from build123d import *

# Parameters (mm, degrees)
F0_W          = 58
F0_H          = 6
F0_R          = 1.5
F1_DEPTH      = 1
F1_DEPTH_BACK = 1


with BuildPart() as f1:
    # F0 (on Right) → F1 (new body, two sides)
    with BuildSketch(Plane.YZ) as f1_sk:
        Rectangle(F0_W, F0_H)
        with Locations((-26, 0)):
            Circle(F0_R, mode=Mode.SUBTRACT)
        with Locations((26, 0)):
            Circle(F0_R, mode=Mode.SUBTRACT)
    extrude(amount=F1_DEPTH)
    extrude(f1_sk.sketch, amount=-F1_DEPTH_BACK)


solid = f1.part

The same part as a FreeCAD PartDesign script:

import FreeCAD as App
import Part
import Sketcher

V = App.Vector
Q = App.Units.Quantity

doc = App.newDocument("Part")
body = doc.addObject("PartDesign::Body", "Body")

# Sketch on YZ plane
sketch1 = doc.addObject("Sketcher::SketchObject", "Sketch")
body.addObject(sketch1)
sketch1.AttachmentSupport = (doc.YZ_Plane, [""])
sketch1.MapMode = "FlatFace"
sketch1.addGeometry([
    Part.LineSegment(V(-29, 3, 0), V(-29, -3, 0)),  # 0
    Part.LineSegment(V(-29, -3, 0), V(29, -3, 0)),  # 1
    Part.LineSegment(V(29, -3, 0), V(29, 3, 0)),  # 2
    Part.LineSegment(V(29, 3, 0), V(-29, 3, 0)),  # 3
    Part.Circle(V(-26, 0, 0), V(0, 0, 1), 1.5),  # 4
    Part.Circle(V(26, 0, 0), V(0, 0, 1), 1.5),  # 5
], False)
sketch1.addConstraint([
    Sketcher.Constraint("Coincident", 0, 2, 1, 1),
    Sketcher.Constraint("Coincident", 1, 2, 2, 1),
    Sketcher.Constraint("Coincident", 2, 2, 3, 1),
    Sketcher.Constraint("Coincident", 3, 2, 0, 1),
    Sketcher.Constraint("Vertical", 0),
    Sketcher.Constraint("Horizontal", 1),
    Sketcher.Constraint("Vertical", 2),
    Sketcher.Constraint("Horizontal", 3),
    Sketcher.Constraint("Equal", 4, 5),
    Sketcher.Constraint("Symmetric", 4, 3, 5, 3, -1, 1),
    Sketcher.Constraint("Symmetric", 0, 2, 2, 2, -1, 1),
    Sketcher.Constraint("PointOnObject", 4, 3, -1),
    Sketcher.Constraint("Diameter", 4, Q("3 mm")),
    Sketcher.Constraint("DistanceX", 1, 1, 1, 2, Q("58 mm")),
    Sketcher.Constraint("DistanceY", 0, 2, 0, 1, Q("6 mm")),
    Sketcher.Constraint("DistanceX", 4, 3, -1, 1, Q("26 mm")),
])
pad1 = doc.addObject("PartDesign::Pad", "Pad")
body.addObject(pad1)
pad1.Profile = sketch1
pad1.Type = "TwoLengths"
pad1.Length = 1
pad1.Length2 = 1

doc.recompute()
